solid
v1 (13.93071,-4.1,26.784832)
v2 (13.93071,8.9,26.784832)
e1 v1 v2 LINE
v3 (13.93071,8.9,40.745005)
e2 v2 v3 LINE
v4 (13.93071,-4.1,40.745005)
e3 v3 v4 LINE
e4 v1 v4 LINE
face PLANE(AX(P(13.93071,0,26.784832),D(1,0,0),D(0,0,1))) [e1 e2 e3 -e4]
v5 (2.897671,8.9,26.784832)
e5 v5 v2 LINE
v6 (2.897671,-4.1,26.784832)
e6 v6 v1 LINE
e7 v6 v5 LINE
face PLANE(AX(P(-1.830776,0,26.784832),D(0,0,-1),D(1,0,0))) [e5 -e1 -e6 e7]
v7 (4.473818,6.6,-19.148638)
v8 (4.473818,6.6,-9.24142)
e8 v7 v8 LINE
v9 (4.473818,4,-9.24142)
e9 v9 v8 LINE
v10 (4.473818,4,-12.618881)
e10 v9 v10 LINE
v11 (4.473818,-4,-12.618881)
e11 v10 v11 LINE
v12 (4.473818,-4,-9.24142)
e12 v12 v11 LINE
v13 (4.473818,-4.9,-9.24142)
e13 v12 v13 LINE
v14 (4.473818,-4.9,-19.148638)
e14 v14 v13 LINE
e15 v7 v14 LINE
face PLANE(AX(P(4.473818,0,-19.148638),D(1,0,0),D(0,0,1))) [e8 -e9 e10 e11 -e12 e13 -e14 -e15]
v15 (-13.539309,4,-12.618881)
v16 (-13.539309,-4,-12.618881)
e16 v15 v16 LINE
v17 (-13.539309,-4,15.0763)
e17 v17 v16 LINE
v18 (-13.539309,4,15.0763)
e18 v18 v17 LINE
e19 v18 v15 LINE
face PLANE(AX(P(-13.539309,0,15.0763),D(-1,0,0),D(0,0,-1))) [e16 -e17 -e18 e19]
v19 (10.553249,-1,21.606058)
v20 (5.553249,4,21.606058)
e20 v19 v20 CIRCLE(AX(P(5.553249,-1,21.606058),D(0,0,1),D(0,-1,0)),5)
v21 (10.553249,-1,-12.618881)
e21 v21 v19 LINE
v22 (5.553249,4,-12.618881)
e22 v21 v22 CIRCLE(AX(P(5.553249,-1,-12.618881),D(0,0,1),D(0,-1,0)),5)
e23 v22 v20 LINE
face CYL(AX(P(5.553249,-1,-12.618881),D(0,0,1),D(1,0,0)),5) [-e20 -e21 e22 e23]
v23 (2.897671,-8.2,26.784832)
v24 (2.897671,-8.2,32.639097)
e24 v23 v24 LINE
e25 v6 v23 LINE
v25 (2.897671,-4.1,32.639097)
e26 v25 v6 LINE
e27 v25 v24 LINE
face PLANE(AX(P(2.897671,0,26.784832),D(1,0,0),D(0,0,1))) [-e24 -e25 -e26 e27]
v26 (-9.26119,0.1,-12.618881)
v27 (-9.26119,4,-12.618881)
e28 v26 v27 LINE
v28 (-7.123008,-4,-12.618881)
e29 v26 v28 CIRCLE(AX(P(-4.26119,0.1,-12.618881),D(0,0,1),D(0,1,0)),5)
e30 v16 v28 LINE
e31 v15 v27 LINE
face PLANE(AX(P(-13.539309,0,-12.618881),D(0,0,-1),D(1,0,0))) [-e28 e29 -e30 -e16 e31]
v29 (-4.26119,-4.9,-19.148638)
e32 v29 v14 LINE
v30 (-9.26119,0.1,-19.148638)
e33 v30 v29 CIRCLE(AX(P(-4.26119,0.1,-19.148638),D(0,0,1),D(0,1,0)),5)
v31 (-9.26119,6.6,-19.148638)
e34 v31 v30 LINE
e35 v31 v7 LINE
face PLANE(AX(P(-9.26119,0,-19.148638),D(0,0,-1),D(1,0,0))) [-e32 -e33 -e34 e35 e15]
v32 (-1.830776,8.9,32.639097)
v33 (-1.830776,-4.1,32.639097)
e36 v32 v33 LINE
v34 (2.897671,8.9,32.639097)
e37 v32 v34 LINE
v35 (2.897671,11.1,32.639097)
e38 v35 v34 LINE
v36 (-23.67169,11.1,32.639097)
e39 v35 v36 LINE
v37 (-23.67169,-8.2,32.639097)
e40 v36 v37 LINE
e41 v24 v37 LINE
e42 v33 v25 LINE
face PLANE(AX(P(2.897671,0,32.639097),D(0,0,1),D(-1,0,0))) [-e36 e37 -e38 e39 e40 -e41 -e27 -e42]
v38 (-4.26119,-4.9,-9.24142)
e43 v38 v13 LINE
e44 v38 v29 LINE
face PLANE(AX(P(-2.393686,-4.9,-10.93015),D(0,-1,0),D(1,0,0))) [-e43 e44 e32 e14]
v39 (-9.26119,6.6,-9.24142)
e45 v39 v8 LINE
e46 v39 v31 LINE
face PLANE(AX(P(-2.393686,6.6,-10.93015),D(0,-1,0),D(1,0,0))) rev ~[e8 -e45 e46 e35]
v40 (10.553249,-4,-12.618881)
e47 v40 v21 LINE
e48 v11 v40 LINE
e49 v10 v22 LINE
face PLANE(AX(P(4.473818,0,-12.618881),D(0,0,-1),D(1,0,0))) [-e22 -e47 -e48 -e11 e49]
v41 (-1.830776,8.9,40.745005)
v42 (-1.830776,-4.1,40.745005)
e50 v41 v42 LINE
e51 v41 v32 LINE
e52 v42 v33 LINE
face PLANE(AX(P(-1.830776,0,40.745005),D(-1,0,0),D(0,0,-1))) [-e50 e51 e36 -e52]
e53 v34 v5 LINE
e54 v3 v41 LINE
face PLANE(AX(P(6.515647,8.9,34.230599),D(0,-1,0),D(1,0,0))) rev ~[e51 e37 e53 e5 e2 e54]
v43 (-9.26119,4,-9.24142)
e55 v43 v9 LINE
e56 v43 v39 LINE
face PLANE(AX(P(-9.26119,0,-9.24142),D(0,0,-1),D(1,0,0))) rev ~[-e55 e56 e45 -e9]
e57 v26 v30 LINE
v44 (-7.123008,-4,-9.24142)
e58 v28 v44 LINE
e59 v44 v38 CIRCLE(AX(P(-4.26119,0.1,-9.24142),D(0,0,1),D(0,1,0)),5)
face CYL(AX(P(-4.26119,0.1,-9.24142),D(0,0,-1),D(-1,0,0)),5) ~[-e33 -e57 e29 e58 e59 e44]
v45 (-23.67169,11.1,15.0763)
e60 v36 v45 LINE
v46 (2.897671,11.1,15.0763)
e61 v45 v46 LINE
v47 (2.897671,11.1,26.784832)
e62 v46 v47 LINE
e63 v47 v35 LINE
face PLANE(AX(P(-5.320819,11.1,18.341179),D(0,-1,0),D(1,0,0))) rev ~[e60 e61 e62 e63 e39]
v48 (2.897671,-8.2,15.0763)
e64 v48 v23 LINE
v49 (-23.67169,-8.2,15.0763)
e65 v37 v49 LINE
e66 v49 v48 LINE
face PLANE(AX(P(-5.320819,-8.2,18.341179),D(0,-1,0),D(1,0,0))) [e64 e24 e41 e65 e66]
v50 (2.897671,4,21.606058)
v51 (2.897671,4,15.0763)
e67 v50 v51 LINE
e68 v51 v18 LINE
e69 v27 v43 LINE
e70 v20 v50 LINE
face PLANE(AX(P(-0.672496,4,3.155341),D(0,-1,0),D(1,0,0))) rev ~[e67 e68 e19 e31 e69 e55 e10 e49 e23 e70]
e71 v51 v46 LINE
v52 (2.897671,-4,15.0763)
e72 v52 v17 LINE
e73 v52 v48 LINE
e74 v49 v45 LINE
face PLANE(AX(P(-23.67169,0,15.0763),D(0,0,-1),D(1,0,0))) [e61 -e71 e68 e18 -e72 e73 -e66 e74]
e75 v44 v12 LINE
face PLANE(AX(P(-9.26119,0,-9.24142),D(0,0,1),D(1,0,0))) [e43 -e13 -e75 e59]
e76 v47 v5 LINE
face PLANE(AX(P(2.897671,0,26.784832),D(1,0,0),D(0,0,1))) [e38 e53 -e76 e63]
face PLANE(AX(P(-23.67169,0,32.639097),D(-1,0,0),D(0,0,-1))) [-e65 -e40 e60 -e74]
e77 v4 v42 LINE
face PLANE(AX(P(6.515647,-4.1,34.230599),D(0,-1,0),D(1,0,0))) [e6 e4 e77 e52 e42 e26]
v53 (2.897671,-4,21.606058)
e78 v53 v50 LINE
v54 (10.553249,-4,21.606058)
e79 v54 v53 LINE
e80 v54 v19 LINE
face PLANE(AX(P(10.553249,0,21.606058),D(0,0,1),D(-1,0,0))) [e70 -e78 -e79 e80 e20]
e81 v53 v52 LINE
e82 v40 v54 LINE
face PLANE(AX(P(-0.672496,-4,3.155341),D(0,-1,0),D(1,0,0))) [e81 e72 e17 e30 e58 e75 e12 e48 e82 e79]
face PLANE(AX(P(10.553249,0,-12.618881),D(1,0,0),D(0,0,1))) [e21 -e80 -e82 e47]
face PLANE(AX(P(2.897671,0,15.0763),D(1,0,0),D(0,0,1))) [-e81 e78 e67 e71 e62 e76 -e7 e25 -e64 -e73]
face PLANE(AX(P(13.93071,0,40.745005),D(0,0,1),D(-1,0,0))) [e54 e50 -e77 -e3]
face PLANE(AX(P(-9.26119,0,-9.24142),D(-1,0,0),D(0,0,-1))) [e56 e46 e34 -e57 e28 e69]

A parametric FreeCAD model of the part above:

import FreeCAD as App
import Part
import Sketcher

V = App.Vector
Q = App.Units.Quantity


def edges_at(feature, points):
    """Names of the edges that pass closest to the given points."""
    edges = feature.Shape.Edges
    near = lambda p: min(range(len(edges)), key=lambda i: edges[i].distToShape(Part.Vertex(*p))[0])
    return sorted({f"Edge{near(p) + 1}" for p in points})

doc = App.newDocument("Part")
body = doc.addObject("PartDesign::Body", "Body")

# Sketch on XZ plane
sketch1 = body.newObject("Sketcher::SketchObject", "Sketch")
sketch1.AttachmentSupport = (doc.getObject("XZ_Plane"), [""])
sketch1.MapMode = "FlatFace"
sketch1.addGeometry(Part.LineSegment(V(10.6, 21.6, 0), V(2.9, 21.6, 0)), False)
sketch1.addGeometry(Part.LineSegment(V(2.9, 21.6, 0), V(2.9, 15.1, 0)), False)
sketch1.addGeometry(Part.LineSegment(V(2.9, 15.1, 0), V(-13.5, 15.1, 0)), False)
sketch1.addGeometry(Part.LineSegment(V(-13.5, 15.1, 0), V(-13.5, -12.6, 0)), False)
sketch1.addGeometry(Part.LineSegment(V(-13.5, -12.6, 0), V(-9.3, -12.6, 0)), False)
sketch1.addGeometry(Part.LineSegment(V(-9.3, -12.6, 0), V(-9.3, -9.2, 0)), False)
sketch1.addGeometry(Part.LineSegment(V(-9.3, -9.2, 0), V(4.5, -9.2, 0)), False)
sketch1.addGeometry(Part.LineSegment(V(4.5, -9.2, 0), V(4.5, -12.6, 0)), False)
sketch1.addGeometry(Part.LineSegment(V(4.5, -12.6, 0), V(10.6, -12.6, 0)), False)
sketch1.addGeometry(Part.LineSegment(V(10.6, -12.6, 0), V(10.6, 21.6, 0)), False)
sketch1.addConstraint(Sketcher.Constraint("Coincident", 0, 2, 1, 1))
sketch1.addConstraint(Sketcher.Constraint("Coincident", 1, 2, 2, 1))
sketch1.addConstraint(Sketcher.Constraint("Coincident", 2, 2, 3, 1))
sketch1.addConstraint(Sketcher.Constraint("Coincident", 3, 2, 4, 1))
sketch1.addConstraint(Sketcher.Constraint("Coincident", 4, 2, 5, 1))
sketch1.addConstraint(Sketcher.Constraint("Coincident", 5, 2, 6, 1))
sketch1.addConstraint(Sketcher.Constraint("Coincident", 6, 2, 7, 1))
sketch1.addConstraint(Sketcher.Constraint("Coincident", 7, 2, 8, 1))
sketch1.addConstraint(Sketcher.Constraint("Coincident", 8, 2, 9, 1))
sketch1.addConstraint(Sketcher.Constraint("Coincident", 9, 2, 0, 1))
sketch1.addConstraint(Sketcher.Constraint("Horizontal", 0))
sketch1.addConstraint(Sketcher.Constraint("Vertical", 1))
sketch1.addConstraint(Sketcher.Constraint("Horizontal", 2))
sketch1.addConstraint(Sketcher.Constraint("Vertical", 3))
sketch1.addConstraint(Sketcher.Constraint("Horizontal", 4))
sketch1.addConstraint(Sketcher.Constraint("Vertical", 5))
sketch1.addConstraint(Sketcher.Constraint("Horizontal", 6))
sketch1.addConstraint(Sketcher.Constraint("Vertical", 7))
sketch1.addConstraint(Sketcher.Constraint("Horizontal", 8))
sketch1.addConstraint(Sketcher.Constraint("Vertical", 9))
sketch1.addConstraint(Sketcher.Constraint("Horizontal", 4, 2, 7, 2))
sketch1.addConstraint(Sketcher.Constraint("DistanceX", 2, 2, 2, 1, Q("16.43698 mm")))
sketch1.addConstraint(Sketcher.Constraint("DistanceX", 4, 1, 4, 2, Q("4.278119 mm")))
sketch1.addConstraint(Sketcher.Constraint("DistanceX", 8, 1, 8, 2, Q("6.079431 mm")))
sketch1.addConstraint(Sketcher.Constraint("DistanceY", 3, 2, 3, 1, Q("27.695181 mm")))
sketch1.addConstraint(Sketcher.Constraint("DistanceY", 5, 1, 5, 2, Q("3.377461 mm")))
sketch1.addConstraint(Sketcher.Constraint("DistanceY", 9, 1, 9, 2, Q("34.224939 mm")))
sketch1.addConstraint(Sketcher.Constraint("DistanceY", -1, 1, 1, 2, Q("15.0763 mm")))
sketch1.addConstraint(Sketcher.Constraint("DistanceX", 0, 2, 0, 1, Q("7.655578 mm")))
sketch1.addConstraint(Sketcher.Constraint("DistanceX", -1, 1, 0, 2, Q("2.897671 mm")))
pad1 = body.newObject("PartDesign::Pad", "Pad")
pad1.Profile = sketch1
pad1.Type = "TwoLengths"
pad1.Length = 4
pad1.Length2 = 4

# Sketch on XZ plane
sketch2 = body.newObject("Sketcher::SketchObject", "Sketch001")
sketch2.AttachmentSupport = (doc.getObject("XZ_Plane"), [""])
sketch2.MapMode = "FlatFace"
sketch2.addGeometry(Part.LineSegment(V(3, 15, 0), V(3, 27, 0)), False)
sketch2.addGeometry(Part.LineSegment(V(3, 27, 0), V(3, 33, 0)), False)
sketch2.addGeometry(Part.LineSegment(V(3, 33, 0), V(-24, 33, 0)), False)
sketch2.addGeometry(Part.LineSegment(V(-24, 33, 0), V(-24, 15, 0)), False)
sketch2.addGeometry(Part.LineSegment(V(-24, 15, 0), V(3, 15, 0)), False)
sketch2.addConstraint(Sketcher.Constraint("Coincident", 0, 2, 1, 1))
sketch2.addConstraint(Sketcher.Constraint("Coincident", 1, 2, 2, 1))
sketch2.addConstraint(Sketcher.Constraint("Coincident", 2, 2, 3, 1))
sketch2.addConstraint(Sketcher.Constraint("Coincident", 3, 2, 4, 1))
sketch2.addConstraint(Sketcher.Constraint("Coincident", 4, 2, 0, 1))
sketch2.addConstraint(Sketcher.Constraint("Vertical", 0))
sketch2.addConstraint(Sketcher.Constraint("Vertical", 1))
sketch2.addConstraint(Sketcher.Constraint("Horizontal", 2))
sketch2.addConstraint(Sketcher.Constraint("Vertical", 3))
sketch2.addConstraint(Sketcher.Constraint("Horizontal", 4))
sketch2.addConstraint(Sketcher.Constraint("DistanceX", 2, 2, 2, 1, Q("26.569362 mm")))
sketch2.addConstraint(Sketcher.Constraint("DistanceY", 0, 1, 0, 2, Q("11.708532 mm")))
sketch2.addConstraint(Sketcher.Constraint("DistanceY", -1, 1, 3, 2, Q("15.0763 mm")))
sketch2.addConstraint(Sketcher.Constraint("DistanceY", 1, 1, 1, 2, Q("5.854266 mm")))
sketch2.addConstraint(Sketcher.Constraint("DistanceX", -1, 1, 0, 2, Q("2.897671 mm")))
pad2 = body.newObject("PartDesign::Pad", "Pad001")
pad2.Profile = sketch2
pad2.Type = "TwoLengths"
pad2.Length = 8.2
pad2.Length2 = 11.1

# Sketch on XZ plane
sketch3 = body.newObject("Sketcher::SketchObject", "Sketch002")
sketch3.AttachmentSupport = (doc.getObject("XZ_Plane"), [""])
sketch3.MapMode = "FlatFace"
sketch3.addGeometry(Part.LineSegment(V(14, 27, 0), V(14, 41, 0)), False)
sketch3.addGeometry(Part.LineSegment(V(14, 41, 0), V(-2, 41, 0)), False)
sketch3.addGeometry(Part.LineSegment(V(-2, 41, 0), V(-2, 33, 0)), False)
sketch3.addGeometry(Part.LineSegment(V(-2, 33, 0), V(-2, 27, 0)), False)
sketch3.addGeometry(Part.LineSegment(V(-2, 27, 0), V(14, 27, 0)), False)
sketch3.addConstraint(Sketcher.Constraint("Coincident", 0, 2, 1, 1))
sketch3.addConstraint(Sketcher.Constraint("Coincident", 1, 2, 2, 1))
sketch3.addConstraint(Sketcher.Constraint("Coincident", 2, 2, 3, 1))
sketch3.addConstraint(Sketcher.Constraint("Coincident", 3, 2, 4, 1))
sketch3.addConstraint(Sketcher.Constraint("Coincident", 4, 2, 0, 1))
sketch3.addConstraint(Sketcher.Constraint("Vertical", 0))
sketch3.addConstraint(Sketcher.Constraint("Horizontal", 1))
sketch3.addConstraint(Sketcher.Constraint("Vertical", 2))
sketch3.addConstraint(Sketcher.Constraint("Vertical", 3))
sketch3.addConstraint(Sketcher.Constraint("Horizontal", 4))
sketch3.addConstraint(Sketcher.Constraint("DistanceX", 1, 2, 1, 1, Q("15.761486 mm")))
sketch3.addConstraint(Sketcher.Constraint("DistanceY", 0, 1, 0, 2, Q("13.960173 mm")))
sketch3.addConstraint(Sketcher.Constraint("DistanceY", 2, 2, 2, 1, Q("8.105908 mm")))
sketch3.addConstraint(Sketcher.Constraint("DistanceX", -1, 1, 0, 2, Q("13.93071 mm")))
sketch3.addConstraint(Sketcher.Constraint("DistanceY", -1, 1, 3, 2, Q("26.784832 mm")))
pad3 = body.newObject("PartDesign::Pad", "Pad002")
pad3.Profile = sketch3
pad3.Type = "TwoLengths"
pad3.Length = 4.1
pad3.Length2 = 8.9

# Sketch on XZ plane
sketch4 = body.newObject("Sketcher::SketchObject", "Sketch003")
sketch4.AttachmentSupport = (doc.getObject("XZ_Plane"), [""])
sketch4.MapMode = "FlatFace"
sketch4.addGeometry(Part.LineSegment(V(-9, -9, 0), V(-9, -19, 0)), False)
sketch4.addGeometry(Part.LineSegment(V(-9, -19, 0), V(4, -19, 0)), False)
sketch4.addGeometry(Part.LineSegment(V(4, -19, 0), V(4, -9, 0)), False)
sketch4.addGeometry(Part.LineSegment(V(4, -9, 0), V(-9, -9, 0)), False)
sketch4.addConstraint(Sketcher.Constraint("Coincident", 0, 2, 1, 1))
sketch4.addConstraint(Sketcher.Constraint("Coincident", 1, 2, 2, 1))
sketch4.addConstraint(Sketcher.Constraint("Coincident", 2, 2, 3, 1))
sketch4.addConstraint(Sketcher.Constraint("Coincident", 3, 2, 0, 1))
sketch4.addConstraint(Sketcher.Constraint("Vertical", 0))
sketch4.addConstraint(Sketcher.Constraint("Horizontal", 1))
sketch4.addConstraint(Sketcher.Constraint("Vertical", 2))
sketch4.addConstraint(Sketcher.Constraint("Horizontal", 3))
sketch4.addConstraint(Sketcher.Constraint("DistanceY", 0, 2, 0, 1, Q("9.907219 mm")))
sketch4.addConstraint(Sketcher.Constraint("DistanceX", 1, 1, 1, 2, Q("13.735008 mm")))
sketch4.addConstraint(Sketcher.Constraint("DistanceX", 0, 2, -1, 1, Q("9.26119 mm")))
sketch4.addConstraint(Sketcher.Constraint("DistanceY", 0, 2, -1, 1, Q("19.148638 mm")))
pad4 = body.newObject("PartDesign::Pad", "Pad003")
pad4.Profile = sketch4
pad4.Type = "TwoLengths"
pad4.Length = 4.9
pad4.Length2 = 6.6
doc.recompute()

fillet = body.newObject("PartDesign::Fillet", "Fillet")
fillet.Base = (pad4, edges_at(pad4, [(10.553, 4, 4.494), (-9.261, -4.9, -14.195)]))
fillet.Radius = 5

doc.recompute()
